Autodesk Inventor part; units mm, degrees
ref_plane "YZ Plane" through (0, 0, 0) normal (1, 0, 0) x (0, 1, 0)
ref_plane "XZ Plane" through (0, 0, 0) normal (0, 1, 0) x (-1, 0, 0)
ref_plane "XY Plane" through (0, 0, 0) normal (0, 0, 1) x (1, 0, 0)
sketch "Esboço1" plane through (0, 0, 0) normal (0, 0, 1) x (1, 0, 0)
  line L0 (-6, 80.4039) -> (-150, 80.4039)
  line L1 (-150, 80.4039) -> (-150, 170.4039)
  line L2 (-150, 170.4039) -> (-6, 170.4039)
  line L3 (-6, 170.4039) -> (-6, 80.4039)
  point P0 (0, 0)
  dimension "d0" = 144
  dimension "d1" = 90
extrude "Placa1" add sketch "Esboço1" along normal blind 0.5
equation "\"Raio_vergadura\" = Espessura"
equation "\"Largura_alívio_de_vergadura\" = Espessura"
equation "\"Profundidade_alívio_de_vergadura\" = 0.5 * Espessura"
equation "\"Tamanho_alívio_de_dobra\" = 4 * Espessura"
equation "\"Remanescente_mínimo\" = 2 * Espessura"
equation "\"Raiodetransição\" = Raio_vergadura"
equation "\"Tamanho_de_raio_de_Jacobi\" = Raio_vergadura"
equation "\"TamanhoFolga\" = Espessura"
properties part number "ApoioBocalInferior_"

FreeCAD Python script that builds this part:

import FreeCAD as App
import Part
import Sketcher
from FreeCAD import Vector
Q = App.Units.Quantity


def add_polygon(sketch, points):
    """Adds a closed chain of lines whose ends are joined by coincident constraints."""
    first, n = sketch.GeometryCount, len(points)
    for a, b in zip(points, points[1:] + points[:1]):
        sketch.addGeometry(Part.LineSegment(App.Vector(*a, 0), App.Vector(*b, 0)), False)
    for i in range(n):
        sketch.addConstraint(Sketcher.Constraint("Coincident", first + i, 2, first + (i + 1) % n, 1))

doc = App.newDocument("Part")
params = doc.addObject("Spreadsheet::Sheet", "Params")
for row, (alias, value) in enumerate([
    ("sketch1_width", "144 mm"),
    ("sketch1_height", "90 mm"),
    ("pad1_length", "0.5 mm"),
], start=1):
    params.set(f"A{row}", alias)
    params.set(f"B{row}", "=" + value)
    params.setAlias(f"B{row}", alias)

body = doc.addObject("PartDesign::Body", "Body")

# Sketch on XY plane
sketch1 = body.newObject("Sketcher::SketchObject", "Sketch")
sketch1.AttachmentSupport = (doc.getObject("XY_Plane"), [""])
sketch1.MapMode = "FlatFace"
add_polygon(sketch1, [(-150, 80.4039), (-6, 80.4039), (-6, 170.4039), (-150, 170.4039)])  # lines 0-3
sketch1.addConstraint([
    Sketcher.Constraint("Horizontal", 0),
    Sketcher.Constraint("Vertical", 1),
    Sketcher.Constraint("Horizontal", 2),
    Sketcher.Constraint("Vertical", 3),
    Sketcher.Constraint("DistanceX", 0, 1, 0, 2, Q("144 mm")),
    Sketcher.Constraint("DistanceY", 1, 1, 1, 2, Q("90 mm")),
    Sketcher.Constraint("DistanceX", 0, 2, -1, 1, Q("6 mm")),
    Sketcher.Constraint("DistanceY", -1, 1, 0, 2, Q("80.404 mm")),
])
sketch1.setExpression("Constraints[8]", "Params.sketch1_width")
sketch1.setExpression("Constraints[9]", "Params.sketch1_height")
pad1 = body.newObject("PartDesign::Pad", "Pad")
pad1.Profile = sketch1
pad1.setExpression("Length", "Params.pad1_length")

doc.recompute()
